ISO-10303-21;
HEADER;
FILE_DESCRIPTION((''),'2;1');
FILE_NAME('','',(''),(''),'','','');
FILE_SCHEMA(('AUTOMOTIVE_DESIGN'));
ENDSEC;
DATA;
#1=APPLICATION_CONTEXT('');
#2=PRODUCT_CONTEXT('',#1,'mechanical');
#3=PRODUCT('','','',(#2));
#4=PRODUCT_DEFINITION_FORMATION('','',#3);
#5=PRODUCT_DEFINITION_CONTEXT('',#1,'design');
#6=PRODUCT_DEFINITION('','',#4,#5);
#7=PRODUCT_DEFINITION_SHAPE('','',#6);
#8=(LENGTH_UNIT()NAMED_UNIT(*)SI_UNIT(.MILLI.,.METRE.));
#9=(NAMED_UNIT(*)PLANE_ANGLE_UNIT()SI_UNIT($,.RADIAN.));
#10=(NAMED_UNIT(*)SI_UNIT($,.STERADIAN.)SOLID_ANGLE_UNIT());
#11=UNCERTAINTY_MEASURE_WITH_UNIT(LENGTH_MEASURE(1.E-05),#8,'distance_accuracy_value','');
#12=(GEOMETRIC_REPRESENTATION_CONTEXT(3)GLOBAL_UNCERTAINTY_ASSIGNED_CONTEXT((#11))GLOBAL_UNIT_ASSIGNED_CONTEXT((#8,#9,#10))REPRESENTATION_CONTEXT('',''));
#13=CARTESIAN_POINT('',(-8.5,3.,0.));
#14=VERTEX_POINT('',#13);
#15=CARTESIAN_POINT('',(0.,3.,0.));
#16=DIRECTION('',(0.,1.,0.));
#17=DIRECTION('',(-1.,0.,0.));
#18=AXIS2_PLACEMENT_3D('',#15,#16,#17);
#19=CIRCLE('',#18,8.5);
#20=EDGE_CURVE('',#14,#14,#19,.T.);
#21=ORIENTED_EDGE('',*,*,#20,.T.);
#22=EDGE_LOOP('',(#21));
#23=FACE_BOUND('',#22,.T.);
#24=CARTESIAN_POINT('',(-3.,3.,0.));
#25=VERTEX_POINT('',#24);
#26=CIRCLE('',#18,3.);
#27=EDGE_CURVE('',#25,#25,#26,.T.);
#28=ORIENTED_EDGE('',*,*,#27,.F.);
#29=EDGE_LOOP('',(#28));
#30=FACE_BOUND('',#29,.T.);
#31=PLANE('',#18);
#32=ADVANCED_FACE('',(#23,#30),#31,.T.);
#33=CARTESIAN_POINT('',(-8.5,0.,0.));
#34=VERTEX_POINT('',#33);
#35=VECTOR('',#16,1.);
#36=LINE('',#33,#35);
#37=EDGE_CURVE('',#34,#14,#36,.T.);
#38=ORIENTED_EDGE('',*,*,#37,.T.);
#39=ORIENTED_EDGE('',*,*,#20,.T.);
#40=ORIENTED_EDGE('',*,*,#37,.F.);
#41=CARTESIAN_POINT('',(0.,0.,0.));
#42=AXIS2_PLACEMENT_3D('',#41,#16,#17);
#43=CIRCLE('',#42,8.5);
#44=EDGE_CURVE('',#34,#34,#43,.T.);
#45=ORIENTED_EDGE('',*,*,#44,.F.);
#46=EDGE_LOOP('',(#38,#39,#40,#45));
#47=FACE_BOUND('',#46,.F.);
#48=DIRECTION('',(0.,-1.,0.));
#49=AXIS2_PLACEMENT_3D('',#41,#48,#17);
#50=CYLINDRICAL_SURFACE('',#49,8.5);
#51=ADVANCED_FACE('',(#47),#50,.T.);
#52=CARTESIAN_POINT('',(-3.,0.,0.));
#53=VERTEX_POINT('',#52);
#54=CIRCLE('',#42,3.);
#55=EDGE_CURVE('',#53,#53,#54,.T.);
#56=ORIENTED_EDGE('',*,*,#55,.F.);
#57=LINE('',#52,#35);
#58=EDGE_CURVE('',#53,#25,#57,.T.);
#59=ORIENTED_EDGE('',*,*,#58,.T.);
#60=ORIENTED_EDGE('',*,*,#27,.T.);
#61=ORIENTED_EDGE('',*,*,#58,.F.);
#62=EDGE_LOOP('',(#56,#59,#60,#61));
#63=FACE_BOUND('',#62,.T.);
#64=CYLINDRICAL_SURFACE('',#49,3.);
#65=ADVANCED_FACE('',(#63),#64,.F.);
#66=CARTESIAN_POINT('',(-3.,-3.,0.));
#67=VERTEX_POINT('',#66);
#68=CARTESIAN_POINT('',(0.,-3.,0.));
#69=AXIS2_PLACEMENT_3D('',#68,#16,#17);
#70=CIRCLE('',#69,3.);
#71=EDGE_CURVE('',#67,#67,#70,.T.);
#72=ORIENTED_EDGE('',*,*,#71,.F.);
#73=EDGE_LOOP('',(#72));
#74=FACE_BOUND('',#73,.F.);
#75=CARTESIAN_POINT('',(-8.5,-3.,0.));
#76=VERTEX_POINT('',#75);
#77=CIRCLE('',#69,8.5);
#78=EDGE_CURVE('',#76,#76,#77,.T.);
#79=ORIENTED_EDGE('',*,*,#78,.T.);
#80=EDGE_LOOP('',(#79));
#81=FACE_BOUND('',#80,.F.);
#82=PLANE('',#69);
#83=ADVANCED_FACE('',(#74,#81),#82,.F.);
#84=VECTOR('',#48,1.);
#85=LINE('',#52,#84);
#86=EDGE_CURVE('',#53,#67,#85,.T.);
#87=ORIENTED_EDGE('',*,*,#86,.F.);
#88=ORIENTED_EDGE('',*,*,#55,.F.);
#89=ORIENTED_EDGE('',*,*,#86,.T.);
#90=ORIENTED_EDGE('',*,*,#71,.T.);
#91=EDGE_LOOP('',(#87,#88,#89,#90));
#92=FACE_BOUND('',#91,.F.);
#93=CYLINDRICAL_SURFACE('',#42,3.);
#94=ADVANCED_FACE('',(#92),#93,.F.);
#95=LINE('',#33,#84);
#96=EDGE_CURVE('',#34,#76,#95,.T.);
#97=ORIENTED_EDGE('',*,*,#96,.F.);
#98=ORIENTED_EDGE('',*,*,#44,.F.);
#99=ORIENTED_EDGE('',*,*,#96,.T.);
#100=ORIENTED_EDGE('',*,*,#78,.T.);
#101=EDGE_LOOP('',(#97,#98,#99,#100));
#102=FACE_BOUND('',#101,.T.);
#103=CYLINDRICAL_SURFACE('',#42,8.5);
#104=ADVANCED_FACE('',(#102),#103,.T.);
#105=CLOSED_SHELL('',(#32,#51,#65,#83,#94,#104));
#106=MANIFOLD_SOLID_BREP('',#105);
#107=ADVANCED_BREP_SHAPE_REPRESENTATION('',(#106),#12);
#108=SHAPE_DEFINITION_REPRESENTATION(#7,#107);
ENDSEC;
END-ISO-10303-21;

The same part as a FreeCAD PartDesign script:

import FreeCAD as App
import Part
import Sketcher

V = App.Vector

doc = App.newDocument("Part")
body = doc.addObject("PartDesign::Body", "Body")

sketch1 = body.newObject("Sketcher::SketchObject", "Sketch")
sketch1.AttachmentSupport = (doc.getObject("XZ_Plane"), [""])
sketch1.MapMode = "FlatFace"
sketch1.addGeometry([
    Part.Circle(V(0, 0, 0), V(0, 0, 1), 8.5),
    Part.Circle(V(0, 0, 0), V(0, 0, 1), 3),
], False)
sketch1.addConstraint([
    Sketcher.Constraint("Coincident", 0, 3, -1, 1),
    Sketcher.Constraint("Coincident", 1, 3, -1, 1),
    Sketcher.Constraint("Diameter", 0, 17.0),
    Sketcher.Constraint("Diameter", 1, 6.0),
])
pad1 = body.newObject("PartDesign::Pad", "Pad")
pad1.Profile = sketch1
pad1.Length = 6
pad1.Midplane = True

doc.recompute()
